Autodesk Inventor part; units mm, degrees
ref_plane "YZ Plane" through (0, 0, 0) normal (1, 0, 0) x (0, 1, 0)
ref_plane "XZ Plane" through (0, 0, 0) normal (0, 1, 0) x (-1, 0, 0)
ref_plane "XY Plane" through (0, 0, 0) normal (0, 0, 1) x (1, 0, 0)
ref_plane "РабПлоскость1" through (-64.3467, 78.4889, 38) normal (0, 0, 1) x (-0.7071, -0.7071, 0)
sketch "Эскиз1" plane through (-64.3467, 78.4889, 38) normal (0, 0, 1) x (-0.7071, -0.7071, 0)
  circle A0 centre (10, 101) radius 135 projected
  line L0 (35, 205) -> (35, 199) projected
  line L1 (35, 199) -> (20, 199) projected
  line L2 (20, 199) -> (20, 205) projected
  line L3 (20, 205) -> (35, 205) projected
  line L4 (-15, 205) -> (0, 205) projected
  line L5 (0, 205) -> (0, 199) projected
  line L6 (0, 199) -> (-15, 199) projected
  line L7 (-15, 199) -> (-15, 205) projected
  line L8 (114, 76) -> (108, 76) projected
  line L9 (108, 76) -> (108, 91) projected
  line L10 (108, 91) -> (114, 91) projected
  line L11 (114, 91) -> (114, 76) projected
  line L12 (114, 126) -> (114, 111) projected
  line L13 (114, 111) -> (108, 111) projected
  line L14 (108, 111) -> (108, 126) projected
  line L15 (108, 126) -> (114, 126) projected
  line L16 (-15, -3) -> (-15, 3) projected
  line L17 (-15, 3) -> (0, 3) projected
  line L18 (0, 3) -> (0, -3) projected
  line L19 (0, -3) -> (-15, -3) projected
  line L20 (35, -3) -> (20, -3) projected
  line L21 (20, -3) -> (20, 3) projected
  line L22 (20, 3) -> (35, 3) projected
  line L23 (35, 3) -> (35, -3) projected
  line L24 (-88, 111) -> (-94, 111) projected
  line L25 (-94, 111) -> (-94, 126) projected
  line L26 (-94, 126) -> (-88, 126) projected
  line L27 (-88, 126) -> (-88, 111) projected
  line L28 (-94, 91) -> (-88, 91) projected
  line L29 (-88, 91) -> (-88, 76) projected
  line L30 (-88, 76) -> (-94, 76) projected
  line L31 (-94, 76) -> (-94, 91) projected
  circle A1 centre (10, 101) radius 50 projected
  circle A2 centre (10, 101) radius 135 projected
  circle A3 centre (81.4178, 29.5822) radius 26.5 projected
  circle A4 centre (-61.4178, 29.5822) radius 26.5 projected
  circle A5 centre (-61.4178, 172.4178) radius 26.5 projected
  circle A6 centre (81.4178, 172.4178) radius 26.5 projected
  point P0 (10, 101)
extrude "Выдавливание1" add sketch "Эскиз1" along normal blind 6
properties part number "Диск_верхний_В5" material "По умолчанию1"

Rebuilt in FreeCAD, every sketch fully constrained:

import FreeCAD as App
import Part
import Sketcher
Q = App.Units.Quantity

doc = App.newDocument("Part")
body = doc.addObject("PartDesign::Body", "Body")

# Sketch on XY plane
sketch1 = body.newObject("Sketcher::SketchObject", "Sketch")
sketch1.AttachmentSupport = (doc.getObject("XY_Plane"), [""])
sketch1.MapMode = "FlatFace"
sketch1.AttachmentOffset = App.Placement(App.Vector(0, 0, 38), App.Rotation())
sketch1.addGeometry([
    Part.Circle(App.Vector(0.000017, 0.000047, 0), App.Vector(0, 0, 1), 135),  # 0
    Part.Circle(App.Vector(0.000017, 101.000069, 0), App.Vector(0, 0, 1), 26.5),  # 1
    Part.LineSegment(App.Vector(-66.46802, 80.61022, 0), App.Vector(-55.861419, 91.216822, 0)),  # 2
    Part.LineSegment(App.Vector(-55.861419, 91.216822, 0), App.Vector(-51.618778, 86.974181, 0)),  # 3
    Part.LineSegment(App.Vector(-51.618778, 86.974181, 0), App.Vector(-62.22538, 76.36758, 0)),  # 4
    Part.LineSegment(App.Vector(-62.22538, 76.36758, 0), App.Vector(-66.46802, 80.61022, 0)),  # 5
    Part.LineSegment(App.Vector(55.861453, 91.216822, 0), App.Vector(66.468054, 80.61022, 0)),  # 6
    Part.LineSegment(App.Vector(66.468054, 80.61022, 0), App.Vector(62.225414, 76.36758, 0)),  # 7
    Part.LineSegment(App.Vector(62.225414, 76.36758, 0), App.Vector(51.618812, 86.974181, 0)),  # 8
    Part.LineSegment(App.Vector(51.618812, 86.974181, 0), App.Vector(55.861453, 91.216822, 0)),  # 9
    Part.LineSegment(App.Vector(-86.974117, 51.618842, 0), App.Vector(-91.216758, 55.861483, 0)),  # 10
    Part.LineSegment(App.Vector(-91.216758, 55.861483, 0), App.Vector(-80.610156, 66.468085, 0)),  # 11
    Part.LineSegment(App.Vector(-80.610156, 66.468085, 0), App.Vector(-76.367515, 62.225444, 0)),  # 12
    Part.LineSegment(App.Vector(-76.367515, 62.225444, 0), App.Vector(-86.974117, 51.618842, 0)),  # 13
    Part.Circle(App.Vector(-101.000004, 0.000047, 0), App.Vector(0, 0, 1), 26.5),  # 14
    Part.LineSegment(App.Vector(-80.610156, -66.46799, 0), App.Vector(-91.216758, -55.861388, 0)),  # 15
    Part.LineSegment(App.Vector(-91.216758, -55.861388, 0), App.Vector(-86.974117, -51.618748, 0)),  # 16
    Part.LineSegment(App.Vector(-86.974117, -51.618748, 0), App.Vector(-76.367515, -62.225349, 0)),  # 17
    Part.LineSegment(App.Vector(-76.367515, -62.225349, 0), App.Vector(-80.610156, -66.46799, 0)),  # 18
    Part.LineSegment(App.Vector(86.974151, 51.618842, 0), App.Vector(76.367549, 62.225444, 0)),  # 19
    Part.LineSegment(App.Vector(76.367549, 62.225444, 0), App.Vector(80.61019, 66.468085, 0)),  # 20
    Part.LineSegment(App.Vector(80.61019, 66.468085, 0), App.Vector(91.216792, 55.861483, 0)),  # 21
    Part.LineSegment(App.Vector(91.216792, 55.861483, 0), App.Vector(86.974151, 51.618842, 0)),  # 22
    Part.Circle(App.Vector(101.000038, 0.000047, 0), App.Vector(0, 0, 1), 26.5),  # 23
    Part.LineSegment(App.Vector(86.974151, -51.618748, 0), App.Vector(91.216792, -55.861388, 0)),  # 24
    Part.LineSegment(App.Vector(91.216792, -55.861388, 0), App.Vector(80.61019, -66.46799, 0)),  # 25
    Part.LineSegment(App.Vector(80.61019, -66.46799, 0), App.Vector(76.367549, -62.225349, 0)),  # 26
    Part.LineSegment(App.Vector(76.367549, -62.225349, 0), App.Vector(86.974151, -51.618748, 0)),  # 27
    Part.Circle(App.Vector(0.000017, 0.000047, 0), App.Vector(0, 0, 1), 50),  # 28
    Part.LineSegment(App.Vector(-51.618778, -86.974087, 0), App.Vector(-55.861419, -91.216727, 0)),  # 29
    Part.LineSegment(App.Vector(-55.861419, -91.216727, 0), App.Vector(-66.46802, -80.610126, 0)),  # 30
    Part.LineSegment(App.Vector(-66.46802, -80.610126, 0), App.Vector(-62.22538, -76.367485, 0)),  # 31
    Part.LineSegment(App.Vector(-62.22538, -76.367485, 0), App.Vector(-51.618778, -86.974087, 0)),  # 32
    Part.LineSegment(App.Vector(66.468054, -80.610126, 0), App.Vector(55.861453, -91.216727, 0)),  # 33
    Part.LineSegment(App.Vector(55.861453, -91.216727, 0), App.Vector(51.618812, -86.974087, 0)),  # 34
    Part.LineSegment(App.Vector(51.618812, -86.974087, 0), App.Vector(62.225414, -76.367485, 0)),  # 35
    Part.LineSegment(App.Vector(62.225414, -76.367485, 0), App.Vector(66.468054, -80.610126, 0)),  # 36
    Part.Circle(App.Vector(0.000017, -100.999974, 0), App.Vector(0, 0, 1), 26.5),  # 37
], False)
sketch1.addConstraint([
    Sketcher.Constraint("Coincident", 2, 2, 3, 1),
    Sketcher.Constraint("Coincident", 3, 2, 4, 1),
    Sketcher.Constraint("Coincident", 4, 2, 5, 1),
    Sketcher.Constraint("Coincident", 5, 2, 2, 1),
    Sketcher.Constraint("Coincident", 6, 2, 7, 1),
    Sketcher.Constraint("Coincident", 7, 2, 8, 1),
    Sketcher.Constraint("Coincident", 8, 2, 9, 1),
    Sketcher.Constraint("Coincident", 9, 2, 6, 1),
    Sketcher.Constraint("Coincident", 10, 2, 11, 1),
    Sketcher.Constraint("Coincident", 11, 2, 12, 1),
    Sketcher.Constraint("Coincident", 12, 2, 13, 1),
    Sketcher.Constraint("Coincident", 13, 2, 10, 1),
    Sketcher.Constraint("Coincident", 15, 2, 16, 1),
    Sketcher.Constraint("Coincident", 16, 2, 17, 1),
    Sketcher.Constraint("Coincident", 17, 2, 18, 1),
    Sketcher.Constraint("Coincident", 18, 2, 15, 1),
    Sketcher.Constraint("Coincident", 19, 2, 20, 1),
    Sketcher.Constraint("Coincident", 20, 2, 21, 1),
    Sketcher.Constraint("Coincident", 21, 2, 22, 1),
    Sketcher.Constraint("Coincident", 22, 2, 19, 1),
    Sketcher.Constraint("Coincident", 24, 2, 25, 1),
    Sketcher.Constraint("Coincident", 25, 2, 26, 1),
    Sketcher.Constraint("Coincident", 26, 2, 27, 1),
    Sketcher.Constraint("Coincident", 27, 2, 24, 1),
    Sketcher.Constraint("Coincident", 29, 2, 30, 1),
    Sketcher.Constraint("Coincident", 30, 2, 31, 1),
    Sketcher.Constraint("Coincident", 31, 2, 32, 1),
    Sketcher.Constraint("Coincident", 32, 2, 29, 1),
    Sketcher.Constraint("Coincident", 33, 2, 34, 1),
    Sketcher.Constraint("Coincident", 34, 2, 35, 1),
    Sketcher.Constraint("Coincident", 35, 2, 36, 1),
    Sketcher.Constraint("Coincident", 36, 2, 33, 1),
    Sketcher.Constraint("Coincident", 0, 3, -1, 1),
    Sketcher.Constraint("Coincident", 28, 3, -1, 1),
    Sketcher.Constraint("Equal", 1, 14),
    Sketcher.Constraint("Equal", 14, 23),
    Sketcher.Constraint("Equal", 23, 37),
    Sketcher.Constraint("Symmetric", 14, 3, 23, 3, -1, 1),
    Sketcher.Constraint("Symmetric", 1, 3, 37, 3, -1, 1),
    Sketcher.Constraint("Symmetric", 17, 2, 19, 2, -1, 1),
    Sketcher.Constraint("Symmetric", 18, 2, 20, 2, -1, 1),
    Sketcher.Constraint("Symmetric", 15, 2, 21, 2, -1, 1),
    Sketcher.Constraint("Symmetric", 16, 2, 22, 2, -1, 1),
    Sketcher.Constraint("Symmetric", 10, 2, 24, 2, -1, 1),
    Sketcher.Constraint("Symmetric", 11, 2, 25, 2, -1, 1),
    Sketcher.Constraint("Symmetric", 12, 2, 26, 2, -1, 1),
    Sketcher.Constraint("Symmetric", 13, 2, 27, 2, -1, 1),
    Sketcher.Constraint("Symmetric", 9, 2, 29, 2, -1, 1),
    Sketcher.Constraint("Symmetric", 6, 2, 30, 2, -1, 1),
    Sketcher.Constraint("Symmetric", 7, 2, 31, 2, -1, 1),
    Sketcher.Constraint("Symmetric", 8, 2, 32, 2, -1, 1),
    Sketcher.Constraint("Symmetric", 2, 2, 33, 2, -1, 1),
    Sketcher.Constraint("Symmetric", 3, 2, 34, 2, -1, 1),
    Sketcher.Constraint("Symmetric", 4, 2, 35, 2, -1, 1),
    Sketcher.Constraint("Symmetric", 5, 2, 36, 2, -1, 1),
    Sketcher.Constraint("Symmetric", 5, 2, 6, 2, -2),
    Sketcher.Constraint("Symmetric", 4, 2, 7, 2, -2),
    Sketcher.Constraint("Symmetric", 3, 2, 8, 2, -2),
    Sketcher.Constraint("Symmetric", 2, 2, 9, 2, -2),
    Sketcher.Constraint("Symmetric", 12, 2, 19, 2, -2),
    Sketcher.Constraint("Symmetric", 11, 2, 20, 2, -2),
    Sketcher.Constraint("Symmetric", 10, 2, 21, 2, -2),
    Sketcher.Constraint("Symmetric", 13, 2, 22, 2, -2),
    Sketcher.Constraint("PointOnObject", 1, 3, -2),
    Sketcher.Constraint("PointOnObject", 14, 3, -1),
    Sketcher.Constraint("Perpendicular", 2, 3),
    Sketcher.Constraint("Perpendicular", 3, 4),
    Sketcher.Constraint("Perpendicular", 4, 5),
    Sketcher.Constraint("Parallel", 5, 6),
    Sketcher.Constraint("Perpendicular", 9, 10),
    Sketcher.Constraint("Perpendicular", 10, 11),
    Sketcher.Constraint("Perpendicular", 11, 12),
    Sketcher.Constraint("Perpendicular", 12, 13),
    Sketcher.Constraint("Equal", 9, 10),
    Sketcher.Constraint("Equal", 8, 11),
    Sketcher.Constraint("Diameter", 0, Q("270 mm")),
    Sketcher.Constraint("Diameter", 1, Q("53 mm")),
    Sketcher.Constraint("Diameter", 28, Q("100 mm")),
    Sketcher.Constraint("Distance", 2, Q("15 mm")),
    Sketcher.Constraint("Distance", 3, Q("6 mm")),
    Sketcher.Constraint("DistanceY", -1, 1, 1, 3, Q("101 mm")),
    Sketcher.Constraint("DistanceX", 14, 3, -1, 1, Q("101 mm")),
    Sketcher.Constraint("DistanceX", 5, 2, -1, 1, Q("66.468 mm")),
    Sketcher.Constraint("DistanceY", -1, 1, 11, 2, Q("66.468 mm")),
    Sketcher.Constraint("DistanceX", 13, 2, -1, 1, Q("86.974 mm")),
    Sketcher.Constraint("DistanceY", 32, 2, -1, 1, Q("86.974 mm")),
])
pad1 = body.newObject("PartDesign::Pad", "Pad")
pad1.Profile = sketch1
pad1.Length = 6

doc.recompute()
